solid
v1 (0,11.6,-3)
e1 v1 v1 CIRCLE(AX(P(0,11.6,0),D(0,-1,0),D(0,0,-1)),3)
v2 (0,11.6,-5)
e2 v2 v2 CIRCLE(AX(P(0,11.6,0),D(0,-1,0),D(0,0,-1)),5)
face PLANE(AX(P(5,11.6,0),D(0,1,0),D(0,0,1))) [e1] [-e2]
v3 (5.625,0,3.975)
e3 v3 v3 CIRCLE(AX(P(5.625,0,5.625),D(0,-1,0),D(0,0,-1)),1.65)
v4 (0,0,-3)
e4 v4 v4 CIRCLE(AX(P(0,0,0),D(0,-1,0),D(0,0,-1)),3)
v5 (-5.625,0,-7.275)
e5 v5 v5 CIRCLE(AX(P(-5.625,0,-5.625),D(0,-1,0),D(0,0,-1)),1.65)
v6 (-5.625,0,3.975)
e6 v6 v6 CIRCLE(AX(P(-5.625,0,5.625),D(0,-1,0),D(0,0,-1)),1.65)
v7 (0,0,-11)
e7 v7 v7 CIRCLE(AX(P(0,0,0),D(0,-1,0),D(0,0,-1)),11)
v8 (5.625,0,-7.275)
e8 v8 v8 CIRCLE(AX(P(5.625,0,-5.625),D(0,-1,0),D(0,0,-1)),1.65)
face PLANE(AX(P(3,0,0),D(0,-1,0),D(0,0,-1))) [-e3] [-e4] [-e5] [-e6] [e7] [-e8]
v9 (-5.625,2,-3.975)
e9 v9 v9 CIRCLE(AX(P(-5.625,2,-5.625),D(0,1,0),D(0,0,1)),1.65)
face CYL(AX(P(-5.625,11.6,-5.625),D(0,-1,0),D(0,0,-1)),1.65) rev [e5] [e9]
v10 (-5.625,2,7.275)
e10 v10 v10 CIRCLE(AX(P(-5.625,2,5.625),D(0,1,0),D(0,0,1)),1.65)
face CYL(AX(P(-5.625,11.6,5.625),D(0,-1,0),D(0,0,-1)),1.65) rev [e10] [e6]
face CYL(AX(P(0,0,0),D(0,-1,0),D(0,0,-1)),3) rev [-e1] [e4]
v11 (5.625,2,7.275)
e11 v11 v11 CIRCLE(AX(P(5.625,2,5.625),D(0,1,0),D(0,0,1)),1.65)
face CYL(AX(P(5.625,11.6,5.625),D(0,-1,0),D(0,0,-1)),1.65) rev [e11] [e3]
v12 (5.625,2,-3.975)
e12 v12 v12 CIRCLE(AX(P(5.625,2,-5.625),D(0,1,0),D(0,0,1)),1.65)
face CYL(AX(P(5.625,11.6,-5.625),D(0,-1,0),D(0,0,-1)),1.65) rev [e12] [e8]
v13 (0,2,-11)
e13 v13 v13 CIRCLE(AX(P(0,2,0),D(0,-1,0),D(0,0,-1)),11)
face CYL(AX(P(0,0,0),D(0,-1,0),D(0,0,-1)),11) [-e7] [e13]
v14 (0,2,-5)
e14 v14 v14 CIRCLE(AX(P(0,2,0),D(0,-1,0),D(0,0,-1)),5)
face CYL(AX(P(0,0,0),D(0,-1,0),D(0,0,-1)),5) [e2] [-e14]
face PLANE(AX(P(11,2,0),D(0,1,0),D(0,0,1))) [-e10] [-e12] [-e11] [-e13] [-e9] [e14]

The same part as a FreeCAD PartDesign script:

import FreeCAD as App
import Part
import Sketcher
from FreeCAD import Vector
Q = App.Units.Quantity

doc = App.newDocument("Part")
body = doc.addObject("PartDesign::Body", "Body")

sketch1 = body.newObject("Sketcher::SketchObject", "Sketch")
sketch1.AttachmentSupport = (doc.getObject("XY_Plane"), [""])
sketch1.MapMode = "FlatFace"
sketch1.addGeometry([
    Part.LineSegment(Vector(3, 11.6, 0), Vector(3, 0, 0)),
    Part.LineSegment(Vector(3, 0, 0), Vector(11, 0, 0)),
    Part.LineSegment(Vector(11, 0, 0), Vector(11, 2, 0)),
    Part.LineSegment(Vector(11, 2, 0), Vector(5, 2, 0)),
    Part.LineSegment(Vector(5, 2, 0), Vector(5, 11.6, 0)),
    Part.LineSegment(Vector(5, 11.6, 0), Vector(3, 11.6, 0)),
], False)
sketch1.addConstraint([
    Sketcher.Constraint("Coincident", 0, 2, 1, 1),
    Sketcher.Constraint("Coincident", 1, 2, 2, 1),
    Sketcher.Constraint("Coincident", 2, 2, 3, 1),
    Sketcher.Constraint("Coincident", 3, 2, 4, 1),
    Sketcher.Constraint("Coincident", 4, 2, 5, 1),
    Sketcher.Constraint("Coincident", 5, 2, 0, 1),
    Sketcher.Constraint("Vertical", 0),
    Sketcher.Constraint("Horizontal", 1),
    Sketcher.Constraint("Vertical", 2),
    Sketcher.Constraint("Horizontal", 3),
    Sketcher.Constraint("Vertical", 4),
    Sketcher.Constraint("Horizontal", 5),
    Sketcher.Constraint("PointOnObject", 0, 2, -1),
    Sketcher.Constraint("Equal", 5, 2),
    Sketcher.Constraint("DistanceX", 1, 1, 1, 2, Q("8 mm")),
    Sketcher.Constraint("DistanceX", 3, 2, 3, 1, Q("6 mm")),
    Sketcher.Constraint("DistanceY", 0, 2, 0, 1, Q("11.6 mm")),
    Sketcher.Constraint("DistanceX", -1, 1, 0, 2, Q("3 mm")),
])
revolution = body.newObject("PartDesign::Revolution", "Revolution")
revolution.Profile = sketch1
revolution.ReferenceAxis = (sketch1, ["V_Axis"])
revolution.Angle = 360

sketch2 = body.newObject("Sketcher::SketchObject", "Sketch001")
sketch2.AttachmentSupport = (doc.getObject("XZ_Plane"), [""])
sketch2.MapMode = "FlatFace"
sketch2.addGeometry([
    Part.Circle(Vector(-5.625, 5.625, 0), Vector(0, 0, 1), 1.65),
    Part.Circle(Vector(5.625, 5.625, 0), Vector(0, 0, 1), 1.65),
    Part.Circle(Vector(5.625, -5.625, 0), Vector(0, 0, 1), 1.65),
    Part.Circle(Vector(-5.625, -5.625, 0), Vector(0, 0, 1), 1.65),
], False)
sketch2.addConstraint([
    Sketcher.Constraint("Equal", 0, 1),
    Sketcher.Constraint("Equal", 1, 2),
    Sketcher.Constraint("Equal", 2, 3),
    Sketcher.Constraint("Symmetric", 0, 3, 2, 3, -1, 1),
    Sketcher.Constraint("Symmetric", 1, 3, 3, 3, -1, 1),
    Sketcher.Constraint("Symmetric", 0, 3, 1, 3, -2),
    Sketcher.Constraint("Diameter", 0, Q("3.3 mm")),
    Sketcher.Constraint("DistanceX", 0, 3, 1, 3, Q("11.25 mm")),
    Sketcher.Constraint("DistanceY", 2, 3, 1, 3, Q("11.25 mm")),
])
pocket1 = body.newObject("PartDesign::Pocket", "Pocket")
pocket1.Profile = sketch2
pocket1.Type = "ThroughAll"

doc.recompute()
